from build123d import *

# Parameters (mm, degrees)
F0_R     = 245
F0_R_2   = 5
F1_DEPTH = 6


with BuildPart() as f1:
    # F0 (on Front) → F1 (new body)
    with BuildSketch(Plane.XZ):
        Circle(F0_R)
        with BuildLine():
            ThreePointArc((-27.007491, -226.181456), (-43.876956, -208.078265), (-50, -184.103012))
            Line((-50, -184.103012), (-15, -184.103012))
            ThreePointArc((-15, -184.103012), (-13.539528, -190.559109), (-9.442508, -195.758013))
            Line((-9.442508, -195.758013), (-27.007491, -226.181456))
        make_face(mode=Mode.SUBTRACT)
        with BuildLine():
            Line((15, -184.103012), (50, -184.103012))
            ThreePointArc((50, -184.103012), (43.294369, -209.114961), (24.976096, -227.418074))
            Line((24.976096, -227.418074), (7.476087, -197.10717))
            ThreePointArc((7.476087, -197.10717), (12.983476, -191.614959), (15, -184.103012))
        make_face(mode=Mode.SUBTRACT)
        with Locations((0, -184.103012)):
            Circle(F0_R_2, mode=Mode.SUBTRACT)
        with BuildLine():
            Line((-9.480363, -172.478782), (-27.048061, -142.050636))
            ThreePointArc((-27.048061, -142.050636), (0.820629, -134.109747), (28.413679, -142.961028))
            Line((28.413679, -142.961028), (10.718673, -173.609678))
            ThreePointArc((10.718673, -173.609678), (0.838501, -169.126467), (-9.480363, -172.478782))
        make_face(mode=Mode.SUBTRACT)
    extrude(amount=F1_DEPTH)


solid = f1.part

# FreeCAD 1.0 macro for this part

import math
import FreeCAD as App
import Part
import Sketcher

doc = App.newDocument("Part")
body = doc.addObject("PartDesign::Body", "Body")

sketch1 = body.newObject("Sketcher::SketchObject", "Sketch")
sketch1.AttachmentSupport = (doc.getObject("XZ_Plane"), [""])
sketch1.MapMode = "FlatFace"
sketch1.addGeometry(Part.Circle(App.Vector(0, 0, 0), App.Vector(0, 0, 1), 245), False)
sketch1.addGeometry(Part.LineSegment(App.Vector(-9.442508, -195.758013, 0), App.Vector(-27.007491, -226.181456, 0)), False)
sketch1.addGeometry(Part.ArcOfCircle(Part.Circle(App.Vector(-0.000001, -184.103013, 0), App.Vector(0, 0, 1), 49.999999), math.radians(179.999999), math.radians(237.306162)), False)
sketch1.addGeometry(Part.LineSegment(App.Vector(-50, -184.103012, 0), App.Vector(-15, -184.103012, 0)), False)
sketch1.addGeometry(Part.ArcOfCircle(Part.Circle(App.Vector(-0.000001, -184.103013, 0), App.Vector(0, 0, 1), 14.999999), math.radians(179.999997), math.radians(230.98672)), False)
sketch1.addGeometry(Part.ArcOfCircle(Part.Circle(App.Vector(-0.000001, -184.103012, 0), App.Vector(0, 0, 1), 15.000001), math.radians(-60.105413), math.radians(-0.000002)), False)
sketch1.addGeometry(Part.LineSegment(App.Vector(15, -184.103012, 0), App.Vector(50, -184.103012, 0)), False)
sketch1.addGeometry(Part.ArcOfCircle(Part.Circle(App.Vector(0, -184.103012, 0), App.Vector(0, 0, 1), 50), math.radians(-60.031624), math.radians(0)), False)
sketch1.addGeometry(Part.LineSegment(App.Vector(24.976096, -227.418074, 0), App.Vector(7.476087, -197.10717, 0)), False)
sketch1.addGeometry(Part.Circle(App.Vector(0, -184.103012, 0), App.Vector(0, 0, 1), 5), False)
sketch1.addGeometry(Part.ArcOfCircle(Part.Circle(App.Vector(0, -184.103015, 0), App.Vector(0, 0, 1), 15.000002), math.radians(44.391367), math.radians(129.199615)), False)
sketch1.addGeometry(Part.LineSegment(App.Vector(-9.480363, -172.478782, 0), App.Vector(-27.048061, -142.050636, 0)), False)
sketch1.addGeometry(Part.ArcOfCircle(Part.Circle(App.Vector(0.000001, -184.103011, 0), App.Vector(0, 0, 1), 49.999999), math.radians(55.370075), math.radians(122.749099)), False)
sketch1.addGeometry(Part.LineSegment(App.Vector(28.413679, -142.961028, 0), App.Vector(10.718673, -173.609678, 0)), False)
sketch1.addConstraint(Sketcher.Constraint("Coincident", 1, 2, 2, 2))
sketch1.addConstraint(Sketcher.Constraint("Coincident", 2, 1, 3, 1))
sketch1.addConstraint(Sketcher.Constraint("Coincident", 3, 2, 4, 1))
sketch1.addConstraint(Sketcher.Constraint("Coincident", 4, 2, 1, 1))
sketch1.addConstraint(Sketcher.Constraint("Coincident", 5, 2, 6, 1))
sketch1.addConstraint(Sketcher.Constraint("Coincident", 6, 2, 7, 2))
sketch1.addConstraint(Sketcher.Constraint("Coincident", 7, 1, 8, 1))
sketch1.addConstraint(Sketcher.Constraint("Coincident", 8, 2, 5, 1))
sketch1.addConstraint(Sketcher.Constraint("Coincident", 10, 2, 11, 1))
sketch1.addConstraint(Sketcher.Constraint("Coincident", 11, 2, 12, 2))
sketch1.addConstraint(Sketcher.Constraint("Coincident", 12, 1, 13, 1))
sketch1.addConstraint(Sketcher.Constraint("Coincident", 13, 2, 10, 1))
sketch1.addConstraint(Sketcher.Constraint("Horizontal", 3))
sketch1.addConstraint(Sketcher.Constraint("Horizontal", 6))
sketch1.addConstraint(Sketcher.Constraint("Coincident", 0, 3, -1, 1))
sketch1.addConstraint(Sketcher.Constraint("Coincident", 4, 3, 2, 3))
sketch1.addConstraint(Sketcher.Constraint("Coincident", 5, 3, 2, 3))
sketch1.addConstraint(Sketcher.Constraint("Coincident", 7, 3, 2, 3))
sketch1.addConstraint(Sketcher.Constraint("Coincident", 9, 3, 2, 3))
sketch1.addConstraint(Sketcher.Constraint("Coincident", 10, 3, 2, 3))
sketch1.addConstraint(Sketcher.Constraint("Coincident", 12, 3, 2, 3))
sketch1.addConstraint(Sketcher.Constraint("PointOnObject", 2, 3, -2))
sketch1.addConstraint(Sketcher.Constraint("Diameter", 0, 490.0))
sketch1.addConstraint(Sketcher.Constraint("Diameter", 9, 10.0))
sketch1.addConstraint(Sketcher.Constraint("Radius", 2, 49.999999))
sketch1.addConstraint(Sketcher.Constraint("Radius", 4, 14.999999))
sketch1.addConstraint(Sketcher.Constraint("Radius", 5, 15.000001))
sketch1.addConstraint(Sketcher.Constraint("Radius", 7, 50.0))
sketch1.addConstraint(Sketcher.Constraint("Radius", 12, 49.999999))
sketch1.addConstraint(Sketcher.Constraint("Radius", 10, 15.000002))
sketch1.addConstraint(Sketcher.Constraint("DistanceY", 4, 2, 3, 2, 11.655001))
sketch1.addConstraint(Sketcher.Constraint("DistanceY", 4, 2, 10, 3, 11.654998))
sketch1.addConstraint(Sketcher.Constraint("DistanceX", 11, 2, 10, 2, 17.567698))
sketch1.addConstraint(Sketcher.Constraint("DistanceY", 5, 3, -1, 1, 184.103012))
sketch1.addConstraint(Sketcher.Constraint("DistanceX", 1, 2, -1, 1, 27.007491))
sketch1.addConstraint(Sketcher.Constraint("DistanceY", 5, 2, -1, 1, 184.103012))
sketch1.addConstraint(Sketcher.Constraint("DistanceY", 8, 2, -1, 1, 197.10717))
sketch1.addConstraint(Sketcher.Constraint("DistanceX", 11, 2, -1, 1, 27.048061))
sketch1.addConstraint(Sketcher.Constraint("DistanceX", -1, 1, 12, 1, 28.413679))
sketch1.addConstraint(Sketcher.Constraint("DistanceY", 13, 2, -1, 1, 173.609678))
sketch1.addConstraint(Sketcher.Constraint("DistanceY", 7, 1, 4, 2, 31.660061))
pad1 = body.newObject("PartDesign::Pad", "Pad")
pad1.Profile = sketch1
pad1.Length = 6

doc.recompute()
